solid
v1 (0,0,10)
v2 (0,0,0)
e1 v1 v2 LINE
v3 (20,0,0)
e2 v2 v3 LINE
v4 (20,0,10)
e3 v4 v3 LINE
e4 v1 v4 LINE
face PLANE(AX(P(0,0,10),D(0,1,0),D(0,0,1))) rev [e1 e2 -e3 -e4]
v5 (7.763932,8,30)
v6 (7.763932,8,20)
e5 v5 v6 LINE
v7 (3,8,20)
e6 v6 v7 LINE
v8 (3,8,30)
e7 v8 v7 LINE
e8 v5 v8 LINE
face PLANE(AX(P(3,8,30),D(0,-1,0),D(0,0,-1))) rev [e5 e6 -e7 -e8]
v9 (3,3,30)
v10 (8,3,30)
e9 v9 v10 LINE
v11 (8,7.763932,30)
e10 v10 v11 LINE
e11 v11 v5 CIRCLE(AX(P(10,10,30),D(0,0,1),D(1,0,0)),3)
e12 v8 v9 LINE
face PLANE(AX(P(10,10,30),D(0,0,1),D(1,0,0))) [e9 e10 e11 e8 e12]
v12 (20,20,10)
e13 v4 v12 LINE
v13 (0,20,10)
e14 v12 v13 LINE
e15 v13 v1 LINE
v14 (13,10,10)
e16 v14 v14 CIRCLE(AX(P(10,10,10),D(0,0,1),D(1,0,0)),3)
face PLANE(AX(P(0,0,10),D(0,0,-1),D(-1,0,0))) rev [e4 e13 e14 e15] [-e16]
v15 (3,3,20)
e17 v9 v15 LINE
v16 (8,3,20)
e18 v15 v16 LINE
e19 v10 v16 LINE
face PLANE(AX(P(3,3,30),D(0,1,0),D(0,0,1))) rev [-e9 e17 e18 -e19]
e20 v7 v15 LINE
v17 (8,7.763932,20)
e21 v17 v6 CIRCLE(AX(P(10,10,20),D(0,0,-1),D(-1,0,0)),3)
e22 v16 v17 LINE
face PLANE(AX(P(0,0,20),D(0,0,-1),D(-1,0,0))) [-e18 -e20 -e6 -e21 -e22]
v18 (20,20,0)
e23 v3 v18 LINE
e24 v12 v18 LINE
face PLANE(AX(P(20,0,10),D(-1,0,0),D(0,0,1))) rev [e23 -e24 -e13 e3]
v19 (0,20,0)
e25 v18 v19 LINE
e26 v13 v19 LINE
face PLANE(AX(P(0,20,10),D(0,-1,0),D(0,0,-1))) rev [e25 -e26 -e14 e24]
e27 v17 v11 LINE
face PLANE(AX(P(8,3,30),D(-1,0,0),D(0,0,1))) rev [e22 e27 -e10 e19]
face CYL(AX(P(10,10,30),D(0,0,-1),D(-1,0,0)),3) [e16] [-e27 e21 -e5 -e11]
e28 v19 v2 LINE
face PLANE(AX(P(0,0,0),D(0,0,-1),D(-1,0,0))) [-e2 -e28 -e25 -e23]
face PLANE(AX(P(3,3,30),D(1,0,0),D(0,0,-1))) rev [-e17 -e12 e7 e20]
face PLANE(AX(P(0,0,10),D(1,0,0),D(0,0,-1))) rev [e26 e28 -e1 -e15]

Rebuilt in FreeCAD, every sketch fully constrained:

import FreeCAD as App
import Part
import Sketcher
Q = App.Units.Quantity


def add_polygon(sketch, points):
    """Adds a closed chain of lines whose ends are joined by coincident constraints."""
    first, n = sketch.GeometryCount, len(points)
    for a, b in zip(points, points[1:] + points[:1]):
        sketch.addGeometry(Part.LineSegment(App.Vector(*a, 0), App.Vector(*b, 0)), False)
    for i in range(n):
        sketch.addConstraint(Sketcher.Constraint("Coincident", first + i, 2, first + (i + 1) % n, 1))

doc = App.newDocument("Part")
body = doc.addObject("PartDesign::Body", "Body")

# Sketch on XY plane
sketch1 = doc.addObject("Sketcher::SketchObject", "Sketch")
body.addObject(sketch1)
sketch1.AttachmentSupport = (doc.XY_Plane, [""])
sketch1.MapMode = "FlatFace"
add_polygon(sketch1, [(0, 20), (0, 0), (20, 0), (20, 20)])  # lines 0-3
sketch1.addConstraint(Sketcher.Constraint("Vertical", 0))
sketch1.addConstraint(Sketcher.Constraint("Horizontal", 1))
sketch1.addConstraint(Sketcher.Constraint("Vertical", 2))
sketch1.addConstraint(Sketcher.Constraint("Horizontal", 3))
sketch1.addConstraint(Sketcher.Constraint("Coincident", 0, 2, -1, 1))
sketch1.addConstraint(Sketcher.Constraint("Equal", 3, 0))
sketch1.addConstraint(Sketcher.Constraint("DistanceX", 1, 1, 1, 2, Q("20 mm")))
pad1 = doc.addObject("PartDesign::Pad", "Pad")
body.addObject(pad1)
pad1.Profile = sketch1
pad1.Length = 10
body2 = doc.addObject("PartDesign::Body", "Body001")

# Sketch on XY plane
sketch2 = doc.addObject("Sketcher::SketchObject", "Sketch001")
body2.addObject(sketch2)
sketch2.AttachmentSupport = (doc.getObject("XY_Plane001"), [""])
sketch2.MapMode = "FlatFace"
sketch2.AttachmentOffset = App.Placement(App.Vector(0, 0, 20), App.Rotation())
add_polygon(sketch2, [(3, 8), (3, 3), (8, 3), (8, 8)])  # lines 0-3
sketch2.addConstraint(Sketcher.Constraint("Vertical", 0))
sketch2.addConstraint(Sketcher.Constraint("Horizontal", 1))
sketch2.addConstraint(Sketcher.Constraint("Vertical", 2))
sketch2.addConstraint(Sketcher.Constraint("Horizontal", 3))
sketch2.addConstraint(Sketcher.Constraint("Equal", 3, 0))
sketch2.addConstraint(Sketcher.Constraint("DistanceX", 1, 1, 1, 2, Q("5 mm")))
sketch2.addConstraint(Sketcher.Constraint("DistanceX", -1, 1, 0, 2, Q("3 mm")))
sketch2.addConstraint(Sketcher.Constraint("DistanceY", -1, 1, 0, 2, Q("3 mm")))
pad2 = doc.addObject("PartDesign::Pad", "Pad001")
body2.addObject(pad2)
pad2.Profile = sketch2
pad2.Length = 10
body.AllowCompound = True
doc.recompute()

boolean = doc.addObject("PartDesign::Boolean", "Boolean")
body.addObject(boolean)
boolean.Type = "Fuse"
boolean.addObjects([body2])

# Sketch on XY plane
sketch3 = doc.addObject("Sketcher::SketchObject", "Sketch002")
body.addObject(sketch3)
sketch3.AttachmentSupport = (doc.XY_Plane, [""])
sketch3.MapMode = "FlatFace"
sketch3.AttachmentOffset = App.Placement(App.Vector(0, 0, 10), App.Rotation())
sketch3.addGeometry(Part.Circle(App.Vector(10, 10, 0), App.Vector(0, 0, 1), 3), False)
sketch3.addConstraint(Sketcher.Constraint("Diameter", 0, Q("6 mm")))
sketch3.addConstraint(Sketcher.Constraint("DistanceX", -1, 1, 0, 3, Q("10 mm")))
sketch3.addConstraint(Sketcher.Constraint("DistanceY", -1, 1, 0, 3, Q("10 mm")))
pad3 = doc.addObject("PartDesign::Pad", "Pad002")
body.addObject(pad3)
pad3.Profile = sketch3
pad3.Length = 20

doc.recompute()
